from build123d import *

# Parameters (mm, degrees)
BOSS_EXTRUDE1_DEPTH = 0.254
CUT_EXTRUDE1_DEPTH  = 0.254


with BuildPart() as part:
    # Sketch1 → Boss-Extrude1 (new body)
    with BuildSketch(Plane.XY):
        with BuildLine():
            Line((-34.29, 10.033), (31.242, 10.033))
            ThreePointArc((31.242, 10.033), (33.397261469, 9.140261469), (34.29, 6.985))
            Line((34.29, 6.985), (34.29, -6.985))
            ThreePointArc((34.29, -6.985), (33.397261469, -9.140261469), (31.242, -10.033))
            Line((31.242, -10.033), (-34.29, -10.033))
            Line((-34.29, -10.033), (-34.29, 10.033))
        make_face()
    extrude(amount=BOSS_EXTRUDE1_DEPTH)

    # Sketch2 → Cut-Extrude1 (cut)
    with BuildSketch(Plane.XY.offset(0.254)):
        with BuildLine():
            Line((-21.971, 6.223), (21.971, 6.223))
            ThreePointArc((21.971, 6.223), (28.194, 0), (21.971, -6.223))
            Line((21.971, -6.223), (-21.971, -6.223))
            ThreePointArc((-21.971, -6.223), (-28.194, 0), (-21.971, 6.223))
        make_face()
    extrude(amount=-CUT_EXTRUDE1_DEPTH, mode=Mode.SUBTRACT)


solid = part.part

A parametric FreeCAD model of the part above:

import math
import FreeCAD as App
import Part
import Sketcher
from FreeCAD import Vector
Q = App.Units.Quantity

doc = App.newDocument("Part")
body = doc.addObject("PartDesign::Body", "Body")

# Sketch on XY plane
sketch1 = doc.addObject("Sketcher::SketchObject", "Sketch")
body.addObject(sketch1)
sketch1.AttachmentSupport = (doc.XY_Plane, [""])
sketch1.MapMode = "FlatFace"
sketch1.addGeometry(Part.LineSegment(Vector(31.2, 10, 0), Vector(-34.3, 10, 0)), False)
sketch1.addGeometry(Part.LineSegment(Vector(-34.3, 10, 0), Vector(-34.3, -10, 0)), False)
sketch1.addGeometry(Part.LineSegment(Vector(-34.3, -10, 0), Vector(31.2, -10, 0)), False)
sketch1.addGeometry(Part.ArcOfCircle(Part.Circle(Vector(31.2, -7, 0), Vector(0, 0, 1), 3), math.radians(-90), math.radians(0)), False)
sketch1.addGeometry(Part.LineSegment(Vector(34.3, -7, 0), Vector(34.3, 7, 0)), False)
sketch1.addGeometry(Part.ArcOfCircle(Part.Circle(Vector(31.2, 7, 0), Vector(0, 0, 1), 3), math.radians(0), math.radians(90)), False)
sketch1.addConstraint(Sketcher.Constraint("Coincident", 0, 2, 1, 1))
sketch1.addConstraint(Sketcher.Constraint("Coincident", 1, 2, 2, 1))
sketch1.addConstraint(Sketcher.Constraint("Tangent", 2, 2, 3, 1))
sketch1.addConstraint(Sketcher.Constraint("Tangent", 3, 2, 4, 1))
sketch1.addConstraint(Sketcher.Constraint("Tangent", 4, 2, 5, 1))
sketch1.addConstraint(Sketcher.Constraint("Tangent", 5, 2, 0, 1))
sketch1.addConstraint(Sketcher.Constraint("Horizontal", 0))
sketch1.addConstraint(Sketcher.Constraint("Vertical", 1))
sketch1.addConstraint(Sketcher.Constraint("Horizontal", 2))
sketch1.addConstraint(Sketcher.Constraint("Vertical", 4))
sketch1.addConstraint(Sketcher.Constraint("Equal", 3, 5))
sketch1.addConstraint(Sketcher.Constraint("Radius", 3, Q("0.12 in")))
sketch1.addConstraint(Sketcher.Constraint("DistanceX", 0, 2, 0, 1, Q("2.58 in")))
sketch1.addConstraint(Sketcher.Constraint("DistanceY", 1, 2, 1, 1, Q("0.79 in")))
sketch1.addConstraint(Sketcher.Constraint("DistanceX", -1, 1, 3, 3, Q("1.23 in")))
sketch1.addConstraint(Sketcher.Constraint("DistanceY", 3, 3, -1, 1, Q("0.275 in")))
pad1 = doc.addObject("PartDesign::Pad", "Pad")
body.addObject(pad1)
pad1.Profile = sketch1
pad1.Length = Q("0.01 in")

# Sketch on XY plane
sketch2 = doc.addObject("Sketcher::SketchObject", "Sketch001")
body.addObject(sketch2)
sketch2.AttachmentSupport = (doc.XY_Plane, [""])
sketch2.MapMode = "FlatFace"
sketch2.AttachmentOffset = App.Placement(Vector(0, 0, 0.01 * 25.4), App.Rotation())
sketch2.addGeometry(Part.LineSegment(Vector(22, 6, 0), Vector(-22, 6, 0)), False)
sketch2.addGeometry(Part.ArcOfCircle(Part.Circle(Vector(-22, 0, 0), Vector(0, 0, 1), 6), math.radians(90), math.radians(270)), False)
sketch2.addGeometry(Part.LineSegment(Vector(-22, -6, 0), Vector(22, -6, 0)), False)
sketch2.addGeometry(Part.ArcOfCircle(Part.Circle(Vector(22, 0, 0), Vector(0, 0, 1), 6), math.radians(-90), math.radians(90)), False)
sketch2.addConstraint(Sketcher.Constraint("Tangent", 0, 2, 1, 1))
sketch2.addConstraint(Sketcher.Constraint("Tangent", 1, 2, 2, 1))
sketch2.addConstraint(Sketcher.Constraint("Tangent", 2, 2, 3, 1))
sketch2.addConstraint(Sketcher.Constraint("Tangent", 3, 2, 0, 1))
sketch2.addConstraint(Sketcher.Constraint("Horizontal", 0))
sketch2.addConstraint(Sketcher.Constraint("Horizontal", 2))
sketch2.addConstraint(Sketcher.Constraint("Symmetric", 1, 3, 3, 3, -1, 1))
sketch2.addConstraint(Sketcher.Constraint("Radius", 1, Q("0.245 in")))
sketch2.addConstraint(Sketcher.Constraint("DistanceX", 0, 2, 0, 1, Q("1.73 in")))
pocket1 = doc.addObject("PartDesign::Pocket", "Pocket")
body.addObject(pocket1)
pocket1.Profile = sketch2
pocket1.Length = Q("0.01 in")

doc.recompute()
